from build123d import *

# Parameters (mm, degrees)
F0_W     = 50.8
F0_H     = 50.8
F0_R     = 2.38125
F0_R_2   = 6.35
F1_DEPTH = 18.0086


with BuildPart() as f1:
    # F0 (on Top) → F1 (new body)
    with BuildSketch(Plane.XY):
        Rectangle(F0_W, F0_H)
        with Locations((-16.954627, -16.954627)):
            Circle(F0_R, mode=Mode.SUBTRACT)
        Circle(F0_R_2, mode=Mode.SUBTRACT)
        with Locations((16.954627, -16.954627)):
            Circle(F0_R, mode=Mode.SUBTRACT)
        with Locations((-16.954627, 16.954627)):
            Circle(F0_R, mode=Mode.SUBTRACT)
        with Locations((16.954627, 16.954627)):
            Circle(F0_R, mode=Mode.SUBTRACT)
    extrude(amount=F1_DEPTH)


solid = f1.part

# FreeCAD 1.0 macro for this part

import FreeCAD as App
import Part
import Sketcher

V = App.Vector
Q = App.Units.Quantity

doc = App.newDocument("Part")
params = doc.addObject("Spreadsheet::Sheet", "Params")
for row, (alias, value) in enumerate([
    ("sketch1_diameter", "0.5 in"),
    ("sketch1_width", "2 in"),
    ("sketch1_diameter2", "0.1875 in"),
    ("pad1_length", "0.709 in"),
], start=1):
    params.set(f"A{row}", alias)
    params.set(f"B{row}", "=" + value)
    params.setAlias(f"B{row}", alias)

body = doc.addObject("PartDesign::Body", "Body")

sketch1 = doc.addObject("Sketcher::SketchObject", "Sketch")
body.addObject(sketch1)
sketch1.AttachmentSupport = (doc.XY_Plane, [""])
sketch1.MapMode = "FlatFace"
sketch1.addGeometry([
    Part.LineSegment(V(-25.4, 25.4, 0), V(-25.4, -25.4, 0)),
    Part.LineSegment(V(-25.4, -25.4, 0), V(25.4, -25.4, 0)),
    Part.LineSegment(V(25.4, -25.4, 0), V(25.4, 25.4, 0)),
    Part.LineSegment(V(25.4, 25.4, 0), V(-25.4, 25.4, 0)),
    Part.Circle(V(-17, -17, 0), V(0, 0, 1), 2.4),
    Part.Circle(V(17, -17, 0), V(0, 0, 1), 2.4),
    Part.Circle(V(0, 0, 0), V(0, 0, 1), 6.3),
    Part.Circle(V(-17, 17, 0), V(0, 0, 1), 2.4),
    Part.Circle(V(17, 17, 0), V(0, 0, 1), 2.4),
], False)
sketch1.addConstraint([
    Sketcher.Constraint("Coincident", 0, 2, 1, 1),
    Sketcher.Constraint("Coincident", 1, 2, 2, 1),
    Sketcher.Constraint("Coincident", 2, 2, 3, 1),
    Sketcher.Constraint("Coincident", 3, 2, 0, 1),
    Sketcher.Constraint("Vertical", 0),
    Sketcher.Constraint("Horizontal", 1),
    Sketcher.Constraint("Vertical", 2),
    Sketcher.Constraint("Horizontal", 3),
    Sketcher.Constraint("Coincident", 6, 3, -1, 1),
    Sketcher.Constraint("Equal", 4, 5),
    Sketcher.Constraint("Equal", 5, 7),
    Sketcher.Constraint("Equal", 7, 8),
    Sketcher.Constraint("Symmetric", 5, 3, 7, 3, -1, 1),
    Sketcher.Constraint("Symmetric", 4, 3, 8, 3, -1, 1),
    Sketcher.Constraint("Symmetric", 0, 2, 2, 2, -1, 1),
    Sketcher.Constraint("Symmetric", 4, 3, 5, 3, -2),
    Sketcher.Constraint("Equal", 3, 0),
    Sketcher.Constraint("Diameter", 6, Q("0.5 in")),
    Sketcher.Constraint("DistanceX", 1, 1, 1, 2, Q("2 in")),
    Sketcher.Constraint("Diameter", 4, Q("0.1875 in")),
    Sketcher.Constraint("DistanceX", 4, 3, -1, 1, 16.954627),
    Sketcher.Constraint("DistanceY", 4, 3, -1, 1, 16.954627),
])
sketch1.setExpression("Constraints[17]", "Params.sketch1_diameter")
sketch1.setExpression("Constraints[18]", "Params.sketch1_width")
sketch1.setExpression("Constraints[19]", "Params.sketch1_diameter2")
pad1 = doc.addObject("PartDesign::Pad", "Pad")
body.addObject(pad1)
pad1.Profile = sketch1
pad1.setExpression("Length", "Params.pad1_length")

doc.recompute()
